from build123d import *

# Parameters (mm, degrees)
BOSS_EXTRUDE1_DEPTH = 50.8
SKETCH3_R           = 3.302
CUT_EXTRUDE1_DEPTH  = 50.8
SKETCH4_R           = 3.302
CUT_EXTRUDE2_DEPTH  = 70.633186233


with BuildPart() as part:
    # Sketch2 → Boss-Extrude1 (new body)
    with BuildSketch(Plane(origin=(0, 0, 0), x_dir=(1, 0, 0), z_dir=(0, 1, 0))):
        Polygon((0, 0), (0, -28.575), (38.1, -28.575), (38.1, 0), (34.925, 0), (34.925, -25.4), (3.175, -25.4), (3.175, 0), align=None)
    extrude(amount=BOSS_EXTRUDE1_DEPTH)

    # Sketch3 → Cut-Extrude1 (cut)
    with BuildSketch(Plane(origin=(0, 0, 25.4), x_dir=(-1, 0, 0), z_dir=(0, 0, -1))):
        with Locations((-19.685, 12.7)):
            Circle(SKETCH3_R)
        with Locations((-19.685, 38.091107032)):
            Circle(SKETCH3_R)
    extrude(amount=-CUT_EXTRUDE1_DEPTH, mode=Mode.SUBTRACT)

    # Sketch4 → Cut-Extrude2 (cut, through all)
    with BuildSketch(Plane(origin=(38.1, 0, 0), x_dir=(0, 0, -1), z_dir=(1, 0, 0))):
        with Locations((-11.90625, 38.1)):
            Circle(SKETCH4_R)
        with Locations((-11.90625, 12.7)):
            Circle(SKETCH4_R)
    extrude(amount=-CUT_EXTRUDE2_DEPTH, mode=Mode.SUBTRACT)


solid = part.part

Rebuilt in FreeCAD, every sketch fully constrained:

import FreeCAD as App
import Part
import Sketcher
from FreeCAD import Vector
Q = App.Units.Quantity


def add_polygon(sketch, points):
    """Adds a closed chain of lines whose ends are joined by coincident constraints."""
    first, n = sketch.GeometryCount, len(points)
    for a, b in zip(points, points[1:] + points[:1]):
        sketch.addGeometry(Part.LineSegment(App.Vector(*a, 0), App.Vector(*b, 0)), False)
    for i in range(n):
        sketch.addConstraint(Sketcher.Constraint("Coincident", first + i, 2, first + (i + 1) % n, 1))

doc = App.newDocument("Part")
params = doc.addObject("Spreadsheet::Sheet", "Params")
for row, (alias, value) in enumerate([
    ("sketch1_height", "1 in"),
    ("sketch1_width", "1.5 in"),
    ("sketch1_width2", "1.25 in"),
    ("sketch1_height2", "1.125 in"),
    ("pad1_length", "2 in"),
    ("sketch2_diameter", "0.26 in"),
    ("pocket1_length", "2 in"),
    ("sketch3_diameter", "0.26 in"),
], start=1):
    params.set(f"A{row}", alias)
    params.set(f"B{row}", "=" + value)
    params.setAlias(f"B{row}", alias)

body = doc.addObject("PartDesign::Body", "Body")

# Sketch on XZ plane
sketch1 = body.newObject("Sketcher::SketchObject", "Sketch")
sketch1.AttachmentSupport = (doc.getObject("XZ_Plane"), [""])
sketch1.MapMode = "FlatFace"
add_polygon(sketch1, [(0, 0), (0, 28.6), (38.1, 28.6), (38.1, 0), (34.9, 0), (34.9, 25.4), (3.2, 25.4), (3.2, 0)])  # lines 0-7
sketch1.addConstraint(Sketcher.Constraint("Vertical", 0))
sketch1.addConstraint(Sketcher.Constraint("Horizontal", 1))
sketch1.addConstraint(Sketcher.Constraint("Vertical", 2))
sketch1.addConstraint(Sketcher.Constraint("Horizontal", 3))
sketch1.addConstraint(Sketcher.Constraint("Vertical", 4))
sketch1.addConstraint(Sketcher.Constraint("Horizontal", 5))
sketch1.addConstraint(Sketcher.Constraint("Vertical", 6))
sketch1.addConstraint(Sketcher.Constraint("Horizontal", 7))
sketch1.addConstraint(Sketcher.Constraint("Coincident", 7, 2, -1, 1))
sketch1.addConstraint(Sketcher.Constraint("PointOnObject", 2, 2, -1))
sketch1.addConstraint(Sketcher.Constraint("Equal", 3, 7))
sketch1.addConstraint(Sketcher.Constraint("DistanceY", 4, 1, 4, 2, Q("1 in")))
sketch1.addConstraint(Sketcher.Constraint("DistanceX", 1, 1, 1, 2, Q("1.5 in")))
sketch1.addConstraint(Sketcher.Constraint("DistanceX", 5, 2, 5, 1, Q("1.25 in")))
sketch1.addConstraint(Sketcher.Constraint("DistanceY", 0, 1, 0, 2, Q("1.125 in")))
sketch1.setExpression("Constraints[19]", "Params.sketch1_height")
sketch1.setExpression("Constraints[20]", "Params.sketch1_width")
sketch1.setExpression("Constraints[21]", "Params.sketch1_width2")
sketch1.setExpression("Constraints[22]", "Params.sketch1_height2")
pad1 = body.newObject("PartDesign::Pad", "Pad")
pad1.Profile = sketch1
pad1.setExpression("Length", "Params.pad1_length")
pad1.Reversed = True

# Sketch on XY plane
sketch2 = body.newObject("Sketcher::SketchObject", "Sketch001")
sketch2.AttachmentSupport = (doc.getObject("XY_Plane"), [""])
sketch2.MapMode = "FlatFace"
sketch2.AttachmentOffset = App.Placement(Vector(0, 0, 1 * 25.4), App.Rotation())
sketch2.addGeometry(Part.Circle(Vector(19.7, 12.7, 0), Vector(0, 0, 1), 3.3), False)
sketch2.addGeometry(Part.Circle(Vector(19.7, 38.1, 0), Vector(0, 0, 1), 3.3), False)
sketch2.addConstraint(Sketcher.Constraint("Equal", 0, 1))
sketch2.addConstraint(Sketcher.Constraint("Vertical", 0, 3, 1, 3))
sketch2.addConstraint(Sketcher.Constraint("Diameter", 0, Q("0.26 in")))
sketch2.addConstraint(Sketcher.Constraint("DistanceY", -1, 1, 0, 3, Q("0.5 in")))
sketch2.addConstraint(Sketcher.Constraint("DistanceX", -1, 1, 0, 3, Q("0.775 in")))
sketch2.addConstraint(Sketcher.Constraint("DistanceY", -1, 1, 1, 3, Q("38.091107 mm")))
sketch2.setExpression("Constraints[2]", "Params.sketch2_diameter")
pocket1 = body.newObject("PartDesign::Pocket", "Pocket")
pocket1.Profile = sketch2
pocket1.setExpression("Length", "Params.pocket1_length")
pocket1.Reversed = True

# Sketch on YZ plane
sketch3 = body.newObject("Sketcher::SketchObject", "Sketch002")
sketch3.AttachmentSupport = (doc.getObject("YZ_Plane"), [""])
sketch3.MapMode = "FlatFace"
sketch3.AttachmentOffset = App.Placement(Vector(0, 0, 1.5 * 25.4), App.Rotation())
sketch3.addGeometry(Part.Circle(Vector(38.1, 11.9, 0), Vector(0, 0, 1), 3.3), False)
sketch3.addGeometry(Part.Circle(Vector(12.7, 11.9, 0), Vector(0, 0, 1), 3.3), False)
sketch3.addConstraint(Sketcher.Constraint("Equal", 0, 1))
sketch3.addConstraint(Sketcher.Constraint("Horizontal", 0, 3, 1, 3))
sketch3.addConstraint(Sketcher.Constraint("Diameter", 0, Q("0.26 in")))
sketch3.addConstraint(Sketcher.Constraint("DistanceX", 1, 3, 0, 3, Q("1 in")))
sketch3.addConstraint(Sketcher.Constraint("DistanceX", -1, 1, 0, 3, Q("1.5 in")))
sketch3.addConstraint(Sketcher.Constraint("DistanceY", -1, 1, 0, 3, Q("0.46875 in")))
sketch3.setExpression("Constraints[2]", "Params.sketch3_diameter")
pocket2 = body.newObject("PartDesign::Pocket", "Pocket001")
pocket2.Profile = sketch3
pocket2.Type = "ThroughAll"

doc.recompute()
